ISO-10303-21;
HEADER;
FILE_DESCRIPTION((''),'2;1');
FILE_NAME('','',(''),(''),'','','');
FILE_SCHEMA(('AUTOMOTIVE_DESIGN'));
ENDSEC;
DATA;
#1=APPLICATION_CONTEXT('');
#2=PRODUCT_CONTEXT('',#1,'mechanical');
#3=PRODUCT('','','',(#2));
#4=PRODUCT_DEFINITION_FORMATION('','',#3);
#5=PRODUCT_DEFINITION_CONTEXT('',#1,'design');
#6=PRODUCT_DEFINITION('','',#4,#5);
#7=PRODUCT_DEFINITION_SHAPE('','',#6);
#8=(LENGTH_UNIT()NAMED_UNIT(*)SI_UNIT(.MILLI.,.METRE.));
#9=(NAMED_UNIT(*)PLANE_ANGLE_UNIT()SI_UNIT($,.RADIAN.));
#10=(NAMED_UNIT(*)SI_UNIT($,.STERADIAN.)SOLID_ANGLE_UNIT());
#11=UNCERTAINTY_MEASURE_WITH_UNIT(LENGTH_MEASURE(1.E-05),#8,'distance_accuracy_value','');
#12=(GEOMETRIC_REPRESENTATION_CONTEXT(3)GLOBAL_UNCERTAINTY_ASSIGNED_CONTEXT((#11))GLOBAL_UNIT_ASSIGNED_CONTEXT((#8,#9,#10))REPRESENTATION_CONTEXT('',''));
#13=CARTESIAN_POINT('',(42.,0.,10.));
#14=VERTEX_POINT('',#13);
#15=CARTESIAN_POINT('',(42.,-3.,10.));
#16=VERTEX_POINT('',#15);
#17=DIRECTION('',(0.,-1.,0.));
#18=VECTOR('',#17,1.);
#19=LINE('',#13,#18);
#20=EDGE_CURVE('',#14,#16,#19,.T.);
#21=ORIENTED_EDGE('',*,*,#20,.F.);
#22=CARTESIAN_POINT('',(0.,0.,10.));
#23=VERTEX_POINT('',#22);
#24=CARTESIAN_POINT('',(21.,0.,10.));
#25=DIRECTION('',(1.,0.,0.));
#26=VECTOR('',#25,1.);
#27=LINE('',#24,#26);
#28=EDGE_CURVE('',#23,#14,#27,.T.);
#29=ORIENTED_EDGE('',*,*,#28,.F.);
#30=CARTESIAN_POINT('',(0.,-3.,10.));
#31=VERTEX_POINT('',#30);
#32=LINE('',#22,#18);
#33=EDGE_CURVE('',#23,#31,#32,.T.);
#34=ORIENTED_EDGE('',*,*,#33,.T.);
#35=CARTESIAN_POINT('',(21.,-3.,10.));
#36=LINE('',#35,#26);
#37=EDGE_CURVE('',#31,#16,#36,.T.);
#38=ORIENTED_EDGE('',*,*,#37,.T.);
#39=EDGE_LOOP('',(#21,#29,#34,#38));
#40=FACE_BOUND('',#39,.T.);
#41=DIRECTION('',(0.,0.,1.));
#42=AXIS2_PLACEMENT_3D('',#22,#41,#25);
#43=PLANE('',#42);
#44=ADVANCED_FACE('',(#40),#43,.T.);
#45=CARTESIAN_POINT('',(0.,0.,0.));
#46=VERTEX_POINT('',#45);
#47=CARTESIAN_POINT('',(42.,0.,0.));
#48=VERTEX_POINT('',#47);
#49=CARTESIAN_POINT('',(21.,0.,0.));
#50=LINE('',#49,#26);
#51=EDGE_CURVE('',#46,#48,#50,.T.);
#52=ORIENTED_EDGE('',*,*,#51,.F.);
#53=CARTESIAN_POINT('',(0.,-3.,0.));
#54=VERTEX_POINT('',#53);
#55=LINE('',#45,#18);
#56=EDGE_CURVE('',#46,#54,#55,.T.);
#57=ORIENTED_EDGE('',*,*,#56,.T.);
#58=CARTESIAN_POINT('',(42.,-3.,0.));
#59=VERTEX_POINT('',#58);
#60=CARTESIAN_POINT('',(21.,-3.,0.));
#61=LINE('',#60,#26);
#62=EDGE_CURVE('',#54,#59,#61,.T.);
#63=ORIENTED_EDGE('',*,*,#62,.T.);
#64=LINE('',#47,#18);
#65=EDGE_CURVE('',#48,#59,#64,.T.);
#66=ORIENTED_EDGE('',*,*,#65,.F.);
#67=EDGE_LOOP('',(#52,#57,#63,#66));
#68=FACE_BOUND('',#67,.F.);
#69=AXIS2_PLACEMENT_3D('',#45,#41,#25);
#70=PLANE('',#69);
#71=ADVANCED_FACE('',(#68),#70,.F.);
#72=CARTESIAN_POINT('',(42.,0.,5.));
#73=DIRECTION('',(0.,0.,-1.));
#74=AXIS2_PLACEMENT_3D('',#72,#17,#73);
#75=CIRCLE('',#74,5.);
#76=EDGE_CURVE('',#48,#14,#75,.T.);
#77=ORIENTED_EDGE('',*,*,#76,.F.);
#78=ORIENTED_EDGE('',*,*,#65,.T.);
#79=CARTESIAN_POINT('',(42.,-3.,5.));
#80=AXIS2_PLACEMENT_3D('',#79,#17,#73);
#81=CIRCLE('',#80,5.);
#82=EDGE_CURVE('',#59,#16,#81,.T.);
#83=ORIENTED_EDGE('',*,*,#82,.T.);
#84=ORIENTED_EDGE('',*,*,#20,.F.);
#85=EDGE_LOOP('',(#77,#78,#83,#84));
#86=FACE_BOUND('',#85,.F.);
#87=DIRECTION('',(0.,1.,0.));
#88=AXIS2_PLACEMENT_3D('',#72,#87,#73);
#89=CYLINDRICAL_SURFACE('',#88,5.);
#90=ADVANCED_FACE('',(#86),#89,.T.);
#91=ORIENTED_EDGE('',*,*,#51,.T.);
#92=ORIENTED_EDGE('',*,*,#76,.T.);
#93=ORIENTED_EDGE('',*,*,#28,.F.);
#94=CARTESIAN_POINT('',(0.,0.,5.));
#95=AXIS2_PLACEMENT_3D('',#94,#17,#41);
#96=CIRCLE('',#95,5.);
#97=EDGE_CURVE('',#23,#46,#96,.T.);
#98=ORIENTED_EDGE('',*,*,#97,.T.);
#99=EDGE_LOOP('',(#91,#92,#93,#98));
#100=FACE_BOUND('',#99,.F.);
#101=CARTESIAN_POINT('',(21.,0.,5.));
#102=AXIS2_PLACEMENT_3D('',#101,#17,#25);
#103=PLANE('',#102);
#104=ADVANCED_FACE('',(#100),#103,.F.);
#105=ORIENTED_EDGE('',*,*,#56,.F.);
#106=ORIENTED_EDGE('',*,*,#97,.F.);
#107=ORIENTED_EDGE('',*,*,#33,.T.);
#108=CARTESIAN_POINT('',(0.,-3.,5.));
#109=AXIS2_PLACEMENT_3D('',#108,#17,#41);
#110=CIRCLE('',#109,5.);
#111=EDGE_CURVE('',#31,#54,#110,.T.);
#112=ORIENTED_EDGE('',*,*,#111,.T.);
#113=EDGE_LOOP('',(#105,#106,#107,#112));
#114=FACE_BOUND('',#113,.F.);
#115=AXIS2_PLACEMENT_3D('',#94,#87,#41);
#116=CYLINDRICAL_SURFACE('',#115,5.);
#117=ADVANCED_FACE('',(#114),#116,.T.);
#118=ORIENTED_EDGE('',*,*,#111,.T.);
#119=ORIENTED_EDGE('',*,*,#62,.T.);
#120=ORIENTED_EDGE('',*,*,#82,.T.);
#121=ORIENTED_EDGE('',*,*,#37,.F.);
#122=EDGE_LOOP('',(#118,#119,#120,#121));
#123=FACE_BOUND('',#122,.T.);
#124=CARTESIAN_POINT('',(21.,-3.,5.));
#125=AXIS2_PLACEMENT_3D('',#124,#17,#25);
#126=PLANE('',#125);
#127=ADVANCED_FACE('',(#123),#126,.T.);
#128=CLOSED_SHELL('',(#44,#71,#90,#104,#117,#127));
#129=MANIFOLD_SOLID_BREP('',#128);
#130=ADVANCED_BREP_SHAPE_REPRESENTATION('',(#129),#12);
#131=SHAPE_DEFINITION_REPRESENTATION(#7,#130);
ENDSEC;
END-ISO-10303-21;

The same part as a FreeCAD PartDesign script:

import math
import FreeCAD as App
import Part
import Sketcher
Q = App.Units.Quantity

doc = App.newDocument("Part")
body = doc.addObject("PartDesign::Body", "Body")

sketch1 = body.newObject("Sketcher::SketchObject", "Sketch")
sketch1.AttachmentSupport = (doc.getObject("XZ_Plane"), [""])
sketch1.MapMode = "FlatFace"
sketch1.addGeometry(Part.LineSegment(App.Vector(0, 0, 0), App.Vector(42, 0, 0)), False)
sketch1.addGeometry(Part.ArcOfCircle(Part.Circle(App.Vector(42, 5, 0), App.Vector(0, 0, 1), 5), math.radians(-90), math.radians(90)), False)
sketch1.addGeometry(Part.LineSegment(App.Vector(42, 10, 0), App.Vector(0, 10, 0)), False)
sketch1.addGeometry(Part.ArcOfCircle(Part.Circle(App.Vector(0, 5, 0), App.Vector(0, 0, 1), 5), math.radians(90), math.radians(270)), False)
sketch1.addConstraint(Sketcher.Constraint("Tangent", 0, 2, 1, 1))
sketch1.addConstraint(Sketcher.Constraint("Tangent", 1, 2, 2, 1))
sketch1.addConstraint(Sketcher.Constraint("Tangent", 2, 2, 3, 1))
sketch1.addConstraint(Sketcher.Constraint("Tangent", 3, 2, 0, 1))
sketch1.addConstraint(Sketcher.Constraint("Horizontal", 0))
sketch1.addConstraint(Sketcher.Constraint("Horizontal", 2))
sketch1.addConstraint(Sketcher.Constraint("Coincident", 3, 2, -1, 1))
sketch1.addConstraint(Sketcher.Constraint("Radius", 1, Q("5 mm")))
sketch1.addConstraint(Sketcher.Constraint("DistanceX", 0, 1, 0, 2, Q("42 mm")))
pad1 = body.newObject("PartDesign::Pad", "Pad")
pad1.Profile = sketch1
pad1.Length = 3

doc.recompute()
